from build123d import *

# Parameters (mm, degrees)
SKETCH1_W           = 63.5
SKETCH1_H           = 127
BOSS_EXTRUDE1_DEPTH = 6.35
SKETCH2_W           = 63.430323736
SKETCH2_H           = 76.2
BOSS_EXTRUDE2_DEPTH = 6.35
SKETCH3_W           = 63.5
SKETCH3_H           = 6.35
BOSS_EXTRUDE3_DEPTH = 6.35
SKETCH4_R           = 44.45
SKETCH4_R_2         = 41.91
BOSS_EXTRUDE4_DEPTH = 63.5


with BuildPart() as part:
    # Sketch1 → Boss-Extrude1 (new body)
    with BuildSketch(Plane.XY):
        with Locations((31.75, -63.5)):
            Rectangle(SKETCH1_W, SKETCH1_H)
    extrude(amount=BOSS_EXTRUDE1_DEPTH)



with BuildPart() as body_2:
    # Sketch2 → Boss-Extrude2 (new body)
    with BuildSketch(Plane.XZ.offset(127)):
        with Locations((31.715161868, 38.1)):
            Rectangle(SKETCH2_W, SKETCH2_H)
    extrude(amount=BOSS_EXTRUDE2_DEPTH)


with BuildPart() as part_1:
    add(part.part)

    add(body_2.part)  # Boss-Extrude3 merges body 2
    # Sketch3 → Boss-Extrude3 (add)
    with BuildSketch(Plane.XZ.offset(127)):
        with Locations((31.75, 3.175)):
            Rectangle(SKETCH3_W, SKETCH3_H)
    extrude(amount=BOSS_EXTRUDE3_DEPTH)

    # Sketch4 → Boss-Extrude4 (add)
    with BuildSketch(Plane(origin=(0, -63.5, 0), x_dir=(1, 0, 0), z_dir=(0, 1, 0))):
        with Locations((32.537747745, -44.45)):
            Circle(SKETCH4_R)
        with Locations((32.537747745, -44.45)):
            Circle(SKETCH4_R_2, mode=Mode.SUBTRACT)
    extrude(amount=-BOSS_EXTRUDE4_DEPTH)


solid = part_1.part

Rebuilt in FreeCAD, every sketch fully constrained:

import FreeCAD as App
import Part
import Sketcher
Q = App.Units.Quantity


def add_polygon(sketch, points):
    """Adds a closed chain of lines whose ends are joined by coincident constraints."""
    first, n = sketch.GeometryCount, len(points)
    for a, b in zip(points, points[1:] + points[:1]):
        sketch.addGeometry(Part.LineSegment(App.Vector(*a, 0), App.Vector(*b, 0)), False)
    for i in range(n):
        sketch.addConstraint(Sketcher.Constraint("Coincident", first + i, 2, first + (i + 1) % n, 1))

doc = App.newDocument("Part")
body = doc.addObject("PartDesign::Body", "Body")

sketch1 = body.newObject("Sketcher::SketchObject", "Sketch")
sketch1.AttachmentSupport = (doc.getObject("XY_Plane"), [""])
sketch1.MapMode = "FlatFace"
add_polygon(sketch1, [(0, 0), (0, -127), (64, -127), (64, 0)])
sketch1.addConstraint([
    Sketcher.Constraint("Vertical", 0),
    Sketcher.Constraint("Horizontal", 1),
    Sketcher.Constraint("Vertical", 2),
    Sketcher.Constraint("Horizontal", 3),
    Sketcher.Constraint("Coincident", 3, 2, -1, 1),
    Sketcher.Constraint("DistanceY", 0, 2, 0, 1, Q("5 in")),
    Sketcher.Constraint("DistanceX", 1, 1, 1, 2, Q("2.5 in")),
])
pad1 = body.newObject("PartDesign::Pad", "Pad")
pad1.Profile = sketch1
pad1.Length = Q("0.25 in")
body2 = doc.addObject("PartDesign::Body", "Body001")

sketch2 = body2.newObject("Sketcher::SketchObject", "Sketch001")
sketch2.AttachmentSupport = (doc.getObject("XZ_Plane001"), [""])
sketch2.MapMode = "FlatFace"
sketch2.AttachmentOffset = App.Placement(App.Vector(0, 0, 5 * 25.4), App.Rotation())
add_polygon(sketch2, [(0, 76), (0, 0), (63, 0), (63, 76)])
sketch2.addConstraint([
    Sketcher.Constraint("Vertical", 0),
    Sketcher.Constraint("Horizontal", 1),
    Sketcher.Constraint("Vertical", 2),
    Sketcher.Constraint("Horizontal", 3),
    Sketcher.Constraint("Coincident", 0, 2, -1, 1),
    Sketcher.Constraint("DistanceY", 0, 2, 0, 1, Q("3 in")),
    Sketcher.Constraint("DistanceX", 1, 1, 1, 2, Q("63.430324 mm")),
])
pad2 = body2.newObject("PartDesign::Pad", "Pad001")
pad2.Profile = sketch2
pad2.Length = Q("0.25 in")
doc.recompute()

boolean = body.newObject("PartDesign::Boolean", "Boolean")
boolean.Type = "Fuse"
boolean.addObjects([body2])

sketch3 = body.newObject("Sketcher::SketchObject", "Sketch002")
sketch3.AttachmentSupport = (doc.getObject("XZ_Plane"), [""])
sketch3.MapMode = "FlatFace"
sketch3.AttachmentOffset = App.Placement(App.Vector(0, 0, 5 * 25.4), App.Rotation())
add_polygon(sketch3, [(0, 6), (0, 0), (64, 0), (64, 6)])
sketch3.addConstraint([
    Sketcher.Constraint("Vertical", 0),
    Sketcher.Constraint("Horizontal", 1),
    Sketcher.Constraint("Vertical", 2),
    Sketcher.Constraint("Horizontal", 3),
    Sketcher.Constraint("Coincident", 0, 2, -1, 1),
    Sketcher.Constraint("DistanceX", 1, 1, 1, 2, Q("2.5 in")),
    Sketcher.Constraint("DistanceY", 0, 2, 0, 1, Q("0.25 in")),
])
pad3 = body.newObject("PartDesign::Pad", "Pad002")
pad3.Profile = sketch3
pad3.Length = Q("0.25 in")

sketch4 = body.newObject("Sketcher::SketchObject", "Sketch003")
sketch4.AttachmentSupport = (doc.getObject("XZ_Plane"), [""])
sketch4.MapMode = "FlatFace"
sketch4.AttachmentOffset = App.Placement(App.Vector(0, 0, 2.5 * 25.4), App.Rotation())
sketch4.addGeometry([
    Part.Circle(App.Vector(33, 44, 0), App.Vector(0, 0, 1), 44),
    Part.Circle(App.Vector(33, 44, 0), App.Vector(0, 0, 1), 42),
], False)
sketch4.addConstraint([
    Sketcher.Constraint("Coincident", 1, 3, 0, 3),
    Sketcher.Constraint("Diameter", 0, Q("3.5 in")),
    Sketcher.Constraint("Diameter", 1, Q("3.3 in")),
    Sketcher.Constraint("DistanceY", -1, 1, 0, 3, Q("1.75 in")),
    Sketcher.Constraint("DistanceX", -1, 1, 0, 3, Q("32.537748 mm")),
])
pad4 = body.newObject("PartDesign::Pad", "Pad003")
pad4.Profile = sketch4
pad4.Length = Q("2.5 in")

doc.recompute()
